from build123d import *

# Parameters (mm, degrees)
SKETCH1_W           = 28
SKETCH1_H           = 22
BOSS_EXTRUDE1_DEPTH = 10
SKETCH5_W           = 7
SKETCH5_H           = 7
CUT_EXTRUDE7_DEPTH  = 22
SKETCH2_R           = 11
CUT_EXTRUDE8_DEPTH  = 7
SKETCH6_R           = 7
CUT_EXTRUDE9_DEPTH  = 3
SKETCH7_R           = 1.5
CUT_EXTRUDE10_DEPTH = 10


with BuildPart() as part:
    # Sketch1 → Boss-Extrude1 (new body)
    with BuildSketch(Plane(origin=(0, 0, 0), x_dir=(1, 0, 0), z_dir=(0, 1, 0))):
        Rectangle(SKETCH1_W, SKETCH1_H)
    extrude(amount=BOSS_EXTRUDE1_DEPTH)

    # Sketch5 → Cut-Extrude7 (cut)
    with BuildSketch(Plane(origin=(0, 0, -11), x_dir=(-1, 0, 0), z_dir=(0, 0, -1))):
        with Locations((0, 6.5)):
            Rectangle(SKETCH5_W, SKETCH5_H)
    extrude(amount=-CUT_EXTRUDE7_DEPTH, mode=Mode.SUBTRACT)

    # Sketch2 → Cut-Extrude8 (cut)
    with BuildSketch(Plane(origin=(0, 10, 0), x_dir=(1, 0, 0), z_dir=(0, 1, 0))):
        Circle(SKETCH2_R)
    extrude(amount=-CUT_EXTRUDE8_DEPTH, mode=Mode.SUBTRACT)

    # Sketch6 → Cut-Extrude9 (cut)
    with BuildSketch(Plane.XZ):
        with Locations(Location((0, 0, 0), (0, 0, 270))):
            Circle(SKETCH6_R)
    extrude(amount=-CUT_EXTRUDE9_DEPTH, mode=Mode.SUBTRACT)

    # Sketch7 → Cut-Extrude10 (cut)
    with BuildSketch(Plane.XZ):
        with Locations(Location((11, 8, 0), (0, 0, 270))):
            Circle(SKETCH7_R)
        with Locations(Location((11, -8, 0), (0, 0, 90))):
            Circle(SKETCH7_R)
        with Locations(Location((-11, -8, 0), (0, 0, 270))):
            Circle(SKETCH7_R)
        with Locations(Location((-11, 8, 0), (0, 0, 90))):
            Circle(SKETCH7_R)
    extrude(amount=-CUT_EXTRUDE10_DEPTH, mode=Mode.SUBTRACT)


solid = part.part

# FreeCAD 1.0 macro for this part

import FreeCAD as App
import Part
import Sketcher

V = App.Vector
Q = App.Units.Quantity

doc = App.newDocument("Part")
body = doc.addObject("PartDesign::Body", "Body")

# Sketch on XZ plane
sketch1 = body.newObject("Sketcher::SketchObject", "Sketch")
sketch1.AttachmentSupport = (doc.getObject("XZ_Plane"), [""])
sketch1.MapMode = "FlatFace"
sketch1.addGeometry([
    Part.LineSegment(V(-14, -11, 0), V(-14, 11, 0)),
    Part.LineSegment(V(-14, 11, 0), V(14, 11, 0)),
    Part.LineSegment(V(14, 11, 0), V(14, -11, 0)),
    Part.LineSegment(V(14, -11, 0), V(-14, -11, 0)),
], False)
sketch1.addConstraint([
    Sketcher.Constraint("Coincident", 0, 2, 1, 1),
    Sketcher.Constraint("Coincident", 1, 2, 2, 1),
    Sketcher.Constraint("Coincident", 2, 2, 3, 1),
    Sketcher.Constraint("Coincident", 3, 2, 0, 1),
    Sketcher.Constraint("Vertical", 0),
    Sketcher.Constraint("Horizontal", 1),
    Sketcher.Constraint("Vertical", 2),
    Sketcher.Constraint("Horizontal", 3),
    Sketcher.Constraint("Symmetric", 0, 2, 2, 2, -1, 1),
    Sketcher.Constraint("DistanceX", 1, 1, 1, 2, Q("28 mm")),
    Sketcher.Constraint("DistanceY", 0, 1, 0, 2, Q("22 mm")),
])
pad1 = body.newObject("PartDesign::Pad", "Pad")
pad1.Profile = sketch1
pad1.Length = 10
pad1.Reversed = True

# Sketch on XY plane
sketch2 = body.newObject("Sketcher::SketchObject", "Sketch001")
sketch2.AttachmentSupport = (doc.getObject("XY_Plane"), [""])
sketch2.MapMode = "FlatFace"
sketch2.AttachmentOffset = App.Placement(V(0, 0, -11), App.Rotation())
sketch2.addGeometry([
    Part.LineSegment(V(4, 10, 0), V(4, 3, 0)),
    Part.LineSegment(V(4, 3, 0), V(-4, 3, 0)),
    Part.LineSegment(V(-4, 3, 0), V(-4, 10, 0)),
    Part.LineSegment(V(-4, 10, 0), V(4, 10, 0)),
], False)
sketch2.addConstraint([
    Sketcher.Constraint("Coincident", 0, 2, 1, 1),
    Sketcher.Constraint("Coincident", 1, 2, 2, 1),
    Sketcher.Constraint("Coincident", 2, 2, 3, 1),
    Sketcher.Constraint("Coincident", 3, 2, 0, 1),
    Sketcher.Constraint("Vertical", 0),
    Sketcher.Constraint("Horizontal", 1),
    Sketcher.Constraint("Vertical", 2),
    Sketcher.Constraint("Horizontal", 3),
    Sketcher.Constraint("Equal", 3, 0),
    Sketcher.Constraint("DistanceX", 1, 2, 1, 1, Q("7 mm")),
    Sketcher.Constraint("DistanceY", -1, 1, 0, 2, Q("3 mm")),
    Sketcher.Constraint("DistanceX", -1, 1, 0, 2, Q("3.5 mm")),
])
pocket1 = body.newObject("PartDesign::Pocket", "Pocket")
pocket1.Profile = sketch2
pocket1.Length = 22
pocket1.Reversed = True

# Sketch on XZ plane
sketch3 = body.newObject("Sketcher::SketchObject", "Sketch002")
sketch3.AttachmentSupport = (doc.getObject("XZ_Plane"), [""])
sketch3.MapMode = "FlatFace"
sketch3.AttachmentOffset = App.Placement(V(0, 0, -10), App.Rotation())
sketch3.addGeometry(Part.Circle(V(0, 0, 0), V(0, 0, 1), 11), False)
sketch3.addConstraint([
    Sketcher.Constraint("Coincident", 0, 3, -1, 1),
    Sketcher.Constraint("Diameter", 0, Q("22 mm")),
])
pocket2 = body.newObject("PartDesign::Pocket", "Pocket001")
pocket2.Profile = sketch3
pocket2.Length = 7
pocket2.Reversed = True

# Sketch on XZ plane
sketch4 = body.newObject("Sketcher::SketchObject", "Sketch003")
sketch4.AttachmentSupport = (doc.getObject("XZ_Plane"), [""])
sketch4.MapMode = "FlatFace"
sketch4.addGeometry(Part.Circle(V(0, 0, 0), V(0, 0, 1), 7), False)
sketch4.addConstraint([
    Sketcher.Constraint("Coincident", 0, 3, -1, 1),
    Sketcher.Constraint("Diameter", 0, Q("14 mm")),
])
pocket3 = body.newObject("PartDesign::Pocket", "Pocket002")
pocket3.Profile = sketch4
pocket3.Length = 3

# Sketch on XZ plane
sketch5 = body.newObject("Sketcher::SketchObject", "Sketch004")
sketch5.AttachmentSupport = (doc.getObject("XZ_Plane"), [""])
sketch5.MapMode = "FlatFace"
sketch5.addGeometry([
    Part.Circle(V(11, 8, 0), V(0, 0, 1), 1.5),
    Part.Circle(V(11, -8, 0), V(0, 0, 1), 1.5),
    Part.Circle(V(-11, -8, 0), V(0, 0, 1), 1.5),
    Part.Circle(V(-11, 8, 0), V(0, 0, 1), 1.5),
], False)
sketch5.addConstraint([
    Sketcher.Constraint("Equal", 0, 1),
    Sketcher.Constraint("Equal", 1, 2),
    Sketcher.Constraint("Equal", 2, 3),
    Sketcher.Constraint("Symmetric", 0, 3, 2, 3, -1, 1),
    Sketcher.Constraint("Symmetric", 1, 3, 3, 3, -1, 1),
    Sketcher.Constraint("Symmetric", 1, 3, 2, 3, -2),
    Sketcher.Constraint("Diameter", 0, Q("3 mm")),
    Sketcher.Constraint("DistanceX", -1, 1, 0, 3, Q("11 mm")),
    Sketcher.Constraint("DistanceY", -1, 1, 0, 3, Q("8 mm")),
])
pocket4 = body.newObject("PartDesign::Pocket", "Pocket003")
pocket4.Profile = sketch5
pocket4.Length = 10

doc.recompute()
